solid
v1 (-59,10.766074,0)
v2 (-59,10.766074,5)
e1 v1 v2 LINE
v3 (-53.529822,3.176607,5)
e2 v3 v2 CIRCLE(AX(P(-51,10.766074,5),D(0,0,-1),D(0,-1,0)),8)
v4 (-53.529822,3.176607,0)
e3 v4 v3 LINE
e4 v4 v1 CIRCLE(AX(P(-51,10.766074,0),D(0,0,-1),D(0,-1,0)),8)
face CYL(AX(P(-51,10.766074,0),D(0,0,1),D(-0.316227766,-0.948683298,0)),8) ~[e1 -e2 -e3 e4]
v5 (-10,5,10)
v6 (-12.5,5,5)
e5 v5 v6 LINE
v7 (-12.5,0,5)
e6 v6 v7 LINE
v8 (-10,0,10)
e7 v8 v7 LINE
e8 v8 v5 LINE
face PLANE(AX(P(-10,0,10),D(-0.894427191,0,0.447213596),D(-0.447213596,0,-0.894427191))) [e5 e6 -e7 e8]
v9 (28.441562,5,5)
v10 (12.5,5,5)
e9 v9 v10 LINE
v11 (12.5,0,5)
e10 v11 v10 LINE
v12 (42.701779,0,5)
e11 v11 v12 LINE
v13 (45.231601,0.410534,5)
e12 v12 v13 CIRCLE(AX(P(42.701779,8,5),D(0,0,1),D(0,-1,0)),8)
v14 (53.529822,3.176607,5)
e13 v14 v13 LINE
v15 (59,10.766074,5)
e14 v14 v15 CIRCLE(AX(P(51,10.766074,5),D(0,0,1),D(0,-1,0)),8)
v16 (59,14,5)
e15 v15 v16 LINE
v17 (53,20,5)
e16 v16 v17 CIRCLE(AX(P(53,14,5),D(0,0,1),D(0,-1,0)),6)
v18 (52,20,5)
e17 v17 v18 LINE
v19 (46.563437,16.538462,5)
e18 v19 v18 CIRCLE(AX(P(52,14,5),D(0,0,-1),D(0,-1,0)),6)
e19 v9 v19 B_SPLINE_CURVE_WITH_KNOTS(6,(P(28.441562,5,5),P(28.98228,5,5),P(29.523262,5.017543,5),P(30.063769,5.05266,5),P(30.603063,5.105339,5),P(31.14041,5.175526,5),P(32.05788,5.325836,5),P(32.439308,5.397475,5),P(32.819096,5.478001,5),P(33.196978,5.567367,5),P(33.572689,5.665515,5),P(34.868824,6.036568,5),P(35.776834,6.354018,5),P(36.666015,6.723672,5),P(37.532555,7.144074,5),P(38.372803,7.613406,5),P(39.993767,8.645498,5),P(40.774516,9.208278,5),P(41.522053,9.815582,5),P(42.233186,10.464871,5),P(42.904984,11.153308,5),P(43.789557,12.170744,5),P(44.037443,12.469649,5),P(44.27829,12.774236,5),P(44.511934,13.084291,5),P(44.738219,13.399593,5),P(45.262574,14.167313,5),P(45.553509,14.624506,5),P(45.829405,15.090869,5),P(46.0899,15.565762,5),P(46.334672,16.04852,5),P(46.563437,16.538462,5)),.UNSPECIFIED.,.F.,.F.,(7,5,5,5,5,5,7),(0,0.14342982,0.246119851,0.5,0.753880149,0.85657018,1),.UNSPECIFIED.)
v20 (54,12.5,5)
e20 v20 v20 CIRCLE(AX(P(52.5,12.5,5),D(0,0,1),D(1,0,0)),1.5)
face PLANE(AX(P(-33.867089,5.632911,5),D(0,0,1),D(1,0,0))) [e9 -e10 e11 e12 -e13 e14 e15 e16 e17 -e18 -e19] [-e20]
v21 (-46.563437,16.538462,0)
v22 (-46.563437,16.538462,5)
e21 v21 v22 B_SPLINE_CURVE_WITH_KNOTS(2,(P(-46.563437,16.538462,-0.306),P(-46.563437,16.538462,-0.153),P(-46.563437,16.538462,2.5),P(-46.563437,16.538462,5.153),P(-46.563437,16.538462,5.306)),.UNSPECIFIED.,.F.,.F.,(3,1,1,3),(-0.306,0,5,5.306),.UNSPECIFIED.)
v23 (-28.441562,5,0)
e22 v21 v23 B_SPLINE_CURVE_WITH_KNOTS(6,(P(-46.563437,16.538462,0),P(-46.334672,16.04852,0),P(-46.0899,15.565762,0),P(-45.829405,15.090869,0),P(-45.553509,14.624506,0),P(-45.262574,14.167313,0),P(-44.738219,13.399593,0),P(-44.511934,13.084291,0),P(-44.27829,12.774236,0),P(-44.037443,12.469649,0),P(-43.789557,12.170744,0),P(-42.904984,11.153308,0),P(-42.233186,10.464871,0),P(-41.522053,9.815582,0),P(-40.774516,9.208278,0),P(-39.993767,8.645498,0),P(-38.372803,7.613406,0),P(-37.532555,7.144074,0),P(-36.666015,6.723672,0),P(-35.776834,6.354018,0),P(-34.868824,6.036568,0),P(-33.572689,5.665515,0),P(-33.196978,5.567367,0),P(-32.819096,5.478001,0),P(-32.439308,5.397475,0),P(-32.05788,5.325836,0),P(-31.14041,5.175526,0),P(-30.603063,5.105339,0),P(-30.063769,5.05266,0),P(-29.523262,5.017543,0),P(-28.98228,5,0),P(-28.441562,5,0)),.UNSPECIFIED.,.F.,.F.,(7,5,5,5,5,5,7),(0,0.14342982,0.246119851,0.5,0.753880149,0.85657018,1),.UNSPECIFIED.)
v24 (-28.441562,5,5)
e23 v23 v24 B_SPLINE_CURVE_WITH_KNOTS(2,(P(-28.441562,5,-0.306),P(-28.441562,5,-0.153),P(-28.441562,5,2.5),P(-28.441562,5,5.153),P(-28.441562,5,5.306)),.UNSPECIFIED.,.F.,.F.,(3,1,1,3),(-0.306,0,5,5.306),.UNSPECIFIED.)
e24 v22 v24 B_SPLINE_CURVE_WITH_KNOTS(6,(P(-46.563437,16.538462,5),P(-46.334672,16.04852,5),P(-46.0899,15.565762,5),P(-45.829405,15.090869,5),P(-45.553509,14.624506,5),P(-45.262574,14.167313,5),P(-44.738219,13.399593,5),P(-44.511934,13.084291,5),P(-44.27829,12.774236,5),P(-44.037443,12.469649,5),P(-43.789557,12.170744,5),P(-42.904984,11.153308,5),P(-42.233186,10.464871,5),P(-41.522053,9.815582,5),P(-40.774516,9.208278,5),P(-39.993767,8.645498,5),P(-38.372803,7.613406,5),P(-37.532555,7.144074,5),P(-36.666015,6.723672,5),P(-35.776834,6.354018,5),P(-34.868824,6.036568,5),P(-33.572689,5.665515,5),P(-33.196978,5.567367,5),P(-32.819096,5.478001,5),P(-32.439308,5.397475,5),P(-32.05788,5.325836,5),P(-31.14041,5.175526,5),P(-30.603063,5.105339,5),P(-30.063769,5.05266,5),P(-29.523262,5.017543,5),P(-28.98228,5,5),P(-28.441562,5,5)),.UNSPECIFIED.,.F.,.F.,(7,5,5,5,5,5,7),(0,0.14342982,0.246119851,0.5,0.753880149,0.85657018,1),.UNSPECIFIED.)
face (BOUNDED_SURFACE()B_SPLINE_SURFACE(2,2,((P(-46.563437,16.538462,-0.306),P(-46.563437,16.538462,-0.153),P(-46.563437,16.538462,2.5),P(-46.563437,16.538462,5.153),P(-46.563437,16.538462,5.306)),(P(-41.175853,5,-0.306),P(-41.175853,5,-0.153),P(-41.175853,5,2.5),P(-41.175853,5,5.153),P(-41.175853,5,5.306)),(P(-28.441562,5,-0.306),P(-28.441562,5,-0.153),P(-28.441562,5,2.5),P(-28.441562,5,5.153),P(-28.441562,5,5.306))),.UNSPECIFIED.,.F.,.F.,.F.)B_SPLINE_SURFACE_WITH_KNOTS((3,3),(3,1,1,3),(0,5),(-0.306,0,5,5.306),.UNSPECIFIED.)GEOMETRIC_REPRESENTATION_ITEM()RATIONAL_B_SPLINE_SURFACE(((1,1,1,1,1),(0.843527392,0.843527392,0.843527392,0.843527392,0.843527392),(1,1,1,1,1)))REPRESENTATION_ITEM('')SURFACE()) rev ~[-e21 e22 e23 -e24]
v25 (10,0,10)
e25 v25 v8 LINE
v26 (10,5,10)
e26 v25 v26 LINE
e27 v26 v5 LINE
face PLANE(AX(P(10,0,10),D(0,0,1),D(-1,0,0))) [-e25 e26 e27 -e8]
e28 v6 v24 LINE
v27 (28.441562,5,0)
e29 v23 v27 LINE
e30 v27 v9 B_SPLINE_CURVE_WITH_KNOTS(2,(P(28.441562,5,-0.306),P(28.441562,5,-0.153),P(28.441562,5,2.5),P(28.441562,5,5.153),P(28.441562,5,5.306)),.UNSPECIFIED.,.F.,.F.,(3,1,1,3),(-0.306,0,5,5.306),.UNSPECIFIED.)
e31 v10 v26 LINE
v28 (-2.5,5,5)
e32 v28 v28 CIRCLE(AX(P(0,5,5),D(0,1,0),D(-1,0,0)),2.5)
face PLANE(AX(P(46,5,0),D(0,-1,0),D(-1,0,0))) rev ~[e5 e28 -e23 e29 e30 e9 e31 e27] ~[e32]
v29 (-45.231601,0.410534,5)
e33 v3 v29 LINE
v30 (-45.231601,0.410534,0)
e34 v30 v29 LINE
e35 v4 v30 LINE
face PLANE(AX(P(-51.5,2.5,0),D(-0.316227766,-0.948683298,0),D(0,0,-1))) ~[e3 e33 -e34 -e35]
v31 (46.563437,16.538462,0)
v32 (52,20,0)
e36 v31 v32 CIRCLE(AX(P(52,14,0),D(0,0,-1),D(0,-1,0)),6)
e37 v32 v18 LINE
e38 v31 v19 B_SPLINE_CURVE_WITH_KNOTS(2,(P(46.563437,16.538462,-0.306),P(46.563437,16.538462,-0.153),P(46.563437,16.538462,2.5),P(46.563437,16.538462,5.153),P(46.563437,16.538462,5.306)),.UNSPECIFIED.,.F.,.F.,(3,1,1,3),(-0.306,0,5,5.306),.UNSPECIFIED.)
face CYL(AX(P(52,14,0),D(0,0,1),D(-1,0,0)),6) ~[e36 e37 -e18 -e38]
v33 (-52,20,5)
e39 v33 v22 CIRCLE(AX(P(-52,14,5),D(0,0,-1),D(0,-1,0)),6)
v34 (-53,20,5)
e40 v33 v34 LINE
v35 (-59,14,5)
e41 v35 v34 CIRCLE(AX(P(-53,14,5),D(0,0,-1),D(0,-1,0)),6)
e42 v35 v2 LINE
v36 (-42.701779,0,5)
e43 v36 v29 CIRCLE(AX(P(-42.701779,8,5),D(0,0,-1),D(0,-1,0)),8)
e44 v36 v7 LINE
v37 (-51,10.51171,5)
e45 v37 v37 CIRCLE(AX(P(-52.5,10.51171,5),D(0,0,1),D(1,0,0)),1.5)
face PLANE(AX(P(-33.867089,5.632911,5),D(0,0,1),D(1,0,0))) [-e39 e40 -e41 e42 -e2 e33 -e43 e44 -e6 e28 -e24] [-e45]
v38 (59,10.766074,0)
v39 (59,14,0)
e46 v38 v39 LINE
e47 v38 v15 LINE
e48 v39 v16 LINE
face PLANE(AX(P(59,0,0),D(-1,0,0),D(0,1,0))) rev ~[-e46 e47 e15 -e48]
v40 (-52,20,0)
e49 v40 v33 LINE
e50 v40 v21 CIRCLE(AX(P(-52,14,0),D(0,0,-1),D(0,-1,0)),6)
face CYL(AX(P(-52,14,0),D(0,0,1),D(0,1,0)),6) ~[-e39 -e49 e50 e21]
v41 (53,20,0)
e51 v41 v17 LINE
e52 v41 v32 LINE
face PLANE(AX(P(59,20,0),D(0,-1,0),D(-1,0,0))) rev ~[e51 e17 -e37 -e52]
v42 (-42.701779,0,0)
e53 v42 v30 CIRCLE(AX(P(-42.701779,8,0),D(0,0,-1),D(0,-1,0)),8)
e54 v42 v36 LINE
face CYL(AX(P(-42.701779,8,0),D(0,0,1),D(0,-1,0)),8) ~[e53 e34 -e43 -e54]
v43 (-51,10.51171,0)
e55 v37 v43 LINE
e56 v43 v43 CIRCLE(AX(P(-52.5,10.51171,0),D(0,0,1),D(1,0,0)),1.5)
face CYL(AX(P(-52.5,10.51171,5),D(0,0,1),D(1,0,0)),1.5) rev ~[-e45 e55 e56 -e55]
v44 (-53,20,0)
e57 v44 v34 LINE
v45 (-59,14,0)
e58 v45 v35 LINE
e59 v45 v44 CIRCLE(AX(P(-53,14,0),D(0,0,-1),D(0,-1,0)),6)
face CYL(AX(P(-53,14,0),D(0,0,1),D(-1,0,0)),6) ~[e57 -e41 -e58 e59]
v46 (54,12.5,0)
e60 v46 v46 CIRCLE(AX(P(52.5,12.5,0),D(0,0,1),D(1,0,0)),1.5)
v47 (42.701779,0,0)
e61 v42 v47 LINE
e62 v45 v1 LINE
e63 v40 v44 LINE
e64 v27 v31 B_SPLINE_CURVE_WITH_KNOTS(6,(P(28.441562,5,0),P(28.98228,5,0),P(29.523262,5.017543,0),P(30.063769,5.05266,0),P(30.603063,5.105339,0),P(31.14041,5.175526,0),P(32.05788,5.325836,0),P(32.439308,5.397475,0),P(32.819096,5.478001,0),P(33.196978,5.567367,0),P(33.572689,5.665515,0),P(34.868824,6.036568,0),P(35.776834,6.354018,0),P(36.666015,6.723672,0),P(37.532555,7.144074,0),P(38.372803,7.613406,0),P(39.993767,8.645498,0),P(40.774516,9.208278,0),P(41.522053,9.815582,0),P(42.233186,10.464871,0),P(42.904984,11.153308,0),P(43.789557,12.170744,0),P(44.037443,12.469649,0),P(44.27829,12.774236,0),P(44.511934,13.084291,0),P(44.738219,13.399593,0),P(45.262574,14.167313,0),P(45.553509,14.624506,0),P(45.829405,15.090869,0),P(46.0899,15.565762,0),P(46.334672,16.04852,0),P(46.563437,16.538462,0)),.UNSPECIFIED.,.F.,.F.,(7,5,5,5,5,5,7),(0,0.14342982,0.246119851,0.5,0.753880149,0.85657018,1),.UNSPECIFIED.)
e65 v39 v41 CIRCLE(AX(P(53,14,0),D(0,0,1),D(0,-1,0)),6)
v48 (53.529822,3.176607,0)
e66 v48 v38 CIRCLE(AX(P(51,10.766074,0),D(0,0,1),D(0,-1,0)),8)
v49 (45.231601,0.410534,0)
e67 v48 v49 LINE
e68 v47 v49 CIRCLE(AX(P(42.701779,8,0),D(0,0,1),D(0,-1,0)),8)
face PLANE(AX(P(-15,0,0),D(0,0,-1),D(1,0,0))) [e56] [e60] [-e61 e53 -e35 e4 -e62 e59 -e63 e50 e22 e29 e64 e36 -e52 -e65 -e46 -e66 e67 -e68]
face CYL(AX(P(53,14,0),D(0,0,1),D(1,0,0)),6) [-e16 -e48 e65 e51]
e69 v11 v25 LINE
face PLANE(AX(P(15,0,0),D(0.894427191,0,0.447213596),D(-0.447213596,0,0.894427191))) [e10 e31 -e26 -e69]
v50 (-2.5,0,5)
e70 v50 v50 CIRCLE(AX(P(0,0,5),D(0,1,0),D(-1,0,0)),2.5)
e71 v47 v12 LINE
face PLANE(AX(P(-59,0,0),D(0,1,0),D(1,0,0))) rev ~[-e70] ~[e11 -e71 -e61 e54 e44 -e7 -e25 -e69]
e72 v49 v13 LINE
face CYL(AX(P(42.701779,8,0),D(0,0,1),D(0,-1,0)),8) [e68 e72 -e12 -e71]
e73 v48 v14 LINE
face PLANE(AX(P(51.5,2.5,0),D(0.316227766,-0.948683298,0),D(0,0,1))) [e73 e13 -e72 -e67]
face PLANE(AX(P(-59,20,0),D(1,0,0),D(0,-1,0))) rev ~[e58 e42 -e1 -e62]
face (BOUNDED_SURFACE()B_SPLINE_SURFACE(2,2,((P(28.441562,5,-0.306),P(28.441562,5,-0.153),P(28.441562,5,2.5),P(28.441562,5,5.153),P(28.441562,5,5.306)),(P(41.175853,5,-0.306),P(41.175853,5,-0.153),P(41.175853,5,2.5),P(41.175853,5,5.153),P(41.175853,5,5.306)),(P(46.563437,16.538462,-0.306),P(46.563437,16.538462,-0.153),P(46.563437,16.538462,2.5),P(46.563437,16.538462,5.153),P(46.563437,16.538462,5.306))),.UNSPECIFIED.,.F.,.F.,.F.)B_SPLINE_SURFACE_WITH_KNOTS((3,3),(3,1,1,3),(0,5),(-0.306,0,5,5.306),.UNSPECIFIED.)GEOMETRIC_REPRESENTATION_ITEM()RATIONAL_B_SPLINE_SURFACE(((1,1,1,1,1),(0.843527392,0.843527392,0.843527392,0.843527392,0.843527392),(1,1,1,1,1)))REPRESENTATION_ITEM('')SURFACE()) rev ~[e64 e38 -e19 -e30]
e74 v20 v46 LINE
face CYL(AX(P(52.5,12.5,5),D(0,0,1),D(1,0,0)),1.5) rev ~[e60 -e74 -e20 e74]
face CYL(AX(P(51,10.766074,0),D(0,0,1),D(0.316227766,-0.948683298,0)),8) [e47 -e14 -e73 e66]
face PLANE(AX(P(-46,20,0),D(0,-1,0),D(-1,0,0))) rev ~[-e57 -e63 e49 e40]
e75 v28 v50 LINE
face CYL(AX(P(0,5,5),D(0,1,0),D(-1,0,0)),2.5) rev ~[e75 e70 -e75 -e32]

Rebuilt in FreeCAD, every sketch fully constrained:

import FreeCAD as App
import Part
import Sketcher
from FreeCAD import Vector


def edges_at(feature, points):
    """Names of the edges that pass closest to the given points."""
    edges = feature.Shape.Edges
    near = lambda p: min(range(len(edges)), key=lambda i: edges[i].distToShape(Part.Vertex(*p))[0])
    return sorted({f"Edge{near(p) + 1}" for p in points})

doc = App.newDocument("Part")
params = doc.addObject("Spreadsheet::Sheet", "Params")
for row, (alias, value) in enumerate([
    ("sketch1_width", "118 mm"),
    ("sketch1_width2", "13 mm"),
    ("sketch1_height", "20 mm"),
    ("sketch1_height2", "15 mm"),
    ("pad1_length", "5 mm"),
    ("sketch2_width", "20 mm"),
    ("sketch2_width2", "30 mm"),
    ("pad2_length", "5 mm"),
    ("sketch3_diameter", "5 mm"),
    ("pocket1_length", "25 mm"),
    ("fillet_radius", "6 mm"),
    ("sketch4_diameter", "3 mm"),
    ("pocket2_length", "25 mm"),
    ("fillet2_radius", "20 mm"),
    ("chamfer_size", "5 mm"),
    ("chamfer_size2", "15 mm"),
    ("chamfer2_size", "5 mm"),
    ("chamfer2_size2", "15 mm"),
    ("fillet3_radius", "8 mm"),
], start=1):
    params.set(f"A{row}", alias)
    params.set(f"B{row}", "=" + value)
    params.setAlias(f"B{row}", alias)

body = doc.addObject("PartDesign::Body", "Body")

# Sketch on XY plane
sketch1 = doc.addObject("Sketcher::SketchObject", "Sketch")
body.addObject(sketch1)
sketch1.AttachmentSupport = (doc.XY_Plane, [""])
sketch1.MapMode = "FlatFace"
sketch1.addGeometry([
    Part.LineSegment(Vector(-59, 0, 0), Vector(59, 0, 0)),  # 0
    Part.LineSegment(Vector(59, 0, 0), Vector(59, 20, 0)),  # 1
    Part.LineSegment(Vector(59, 20, 0), Vector(46, 20, 0)),  # 2
    Part.LineSegment(Vector(46, 20, 0), Vector(46, 5, 0)),  # 3
    Part.LineSegment(Vector(46, 5, 0), Vector(-46, 5, 0)),  # 4
    Part.LineSegment(Vector(-46, 5, 0), Vector(-46, 20, 0)),  # 5
    Part.LineSegment(Vector(-46, 20, 0), Vector(-59, 20, 0)),  # 6
    Part.LineSegment(Vector(-59, 20, 0), Vector(-59, 0, 0)),  # 7
], False)
sketch1.addConstraint([
    Sketcher.Constraint("Coincident", 0, 2, 1, 1),
    Sketcher.Constraint("Coincident", 1, 2, 2, 1),
    Sketcher.Constraint("Coincident", 2, 2, 3, 1),
    Sketcher.Constraint("Coincident", 3, 2, 4, 1),
    Sketcher.Constraint("Coincident", 4, 2, 5, 1),
    Sketcher.Constraint("Coincident", 5, 2, 6, 1),
    Sketcher.Constraint("Coincident", 6, 2, 7, 1),
    Sketcher.Constraint("Coincident", 7, 2, 0, 1),
    Sketcher.Constraint("Horizontal", 0),
    Sketcher.Constraint("Vertical", 1),
    Sketcher.Constraint("Horizontal", 2),
    Sketcher.Constraint("Vertical", 3),
    Sketcher.Constraint("Horizontal", 4),
    Sketcher.Constraint("Vertical", 5),
    Sketcher.Constraint("Horizontal", 6),
    Sketcher.Constraint("Vertical", 7),
    Sketcher.Constraint("Symmetric", 0, 2, 7, 2, -1, 1),
    Sketcher.Constraint("Symmetric", 2, 2, 5, 2, -2),
    Sketcher.Constraint("DistanceX", 0, 1, 0, 2, 118.0),
    Sketcher.Constraint("DistanceX", 2, 2, 2, 1, 13.0),
    Sketcher.Constraint("DistanceY", 1, 1, 1, 2, 20.0),
    Sketcher.Constraint("DistanceY", 3, 2, 3, 1, 15.0),
])
sketch1.setExpression("Constraints[18]", "Params.sketch1_width")
sketch1.setExpression("Constraints[19]", "Params.sketch1_width2")
sketch1.setExpression("Constraints[20]", "Params.sketch1_height")
sketch1.setExpression("Constraints[21]", "Params.sketch1_height2")
pad1 = doc.addObject("PartDesign::Pad", "Pad")
body.addObject(pad1)
pad1.Profile = sketch1
pad1.setExpression("Length", "Params.pad1_length")

# Sketch on XZ plane
sketch2 = doc.addObject("Sketcher::SketchObject", "Sketch001")
body.addObject(sketch2)
sketch2.AttachmentSupport = (doc.XZ_Plane, [""])
sketch2.MapMode = "FlatFace"
sketch2.addGeometry([
    Part.LineSegment(Vector(15, 0, 0), Vector(10, 10, 0)),
    Part.LineSegment(Vector(10, 10, 0), Vector(-10, 10, 0)),
    Part.LineSegment(Vector(-10, 10, 0), Vector(-15, 0, 0)),
    Part.LineSegment(Vector(-15, 0, 0), Vector(15, 0, 0)),
], False)
sketch2.addConstraint([
    Sketcher.Constraint("Coincident", 0, 2, 1, 1),
    Sketcher.Constraint("Coincident", 1, 2, 2, 1),
    Sketcher.Constraint("Coincident", 2, 2, 3, 1),
    Sketcher.Constraint("Coincident", 3, 2, 0, 1),
    Sketcher.Constraint("Horizontal", 1),
    Sketcher.Constraint("Horizontal", 3),
    Sketcher.Constraint("Symmetric", 2, 2, 3, 2, -1, 1),
    Sketcher.Constraint("Equal", 0, 2),
    Sketcher.Constraint("DistanceX", 1, 2, 1, 1, 20.0),
    Sketcher.Constraint("DistanceX", 3, 1, 3, 2, 30.0),
    Sketcher.Constraint("DistanceY", -1, 1, 0, 2, 10.0),
])
sketch2.setExpression("Constraints[8]", "Params.sketch2_width")
sketch2.setExpression("Constraints[9]", "Params.sketch2_width2")
pad2 = doc.addObject("PartDesign::Pad", "Pad001")
body.addObject(pad2)
pad2.Profile = sketch2
pad2.setExpression("Length", "Params.pad2_length")
pad2.Reversed = True

# Sketch on XZ plane
sketch3 = doc.addObject("Sketcher::SketchObject", "Sketch002")
body.addObject(sketch3)
sketch3.AttachmentSupport = (doc.XZ_Plane, [""])
sketch3.MapMode = "FlatFace"
sketch3.AttachmentOffset = App.Placement(Vector(0, 0, -5), App.Rotation())
sketch3.addGeometry(Part.Circle(Vector(0, 5, 0), Vector(0, 0, 1), 2.5), False)
sketch3.addConstraint([
    Sketcher.Constraint("PointOnObject", 0, 3, -2),
    Sketcher.Constraint("Diameter", 0, 5.0),
    Sketcher.Constraint("DistanceY", -1, 1, 0, 3, 5.0),
])
sketch3.setExpression("Constraints[1]", "Params.sketch3_diameter")
pocket1 = doc.addObject("PartDesign::Pocket", "Pocket")
body.addObject(pocket1)
pocket1.Profile = sketch3
pocket1.setExpression("Length", "Params.pocket1_length")
pocket1.Reversed = True
doc.recompute()

fillet = doc.addObject("PartDesign::Fillet", "Fillet")
body.addObject(fillet)
fillet.Base = (pocket1, edges_at(pocket1, [
    (59, 20, 2.5),
    (46, 20, 2.5),
    (-46, 20, 2.5),
    (-59, 20, 2.5),
]))
fillet.setExpression("Radius", "Params.fillet_radius")

# Sketch on XY plane
sketch4 = doc.addObject("Sketcher::SketchObject", "Sketch003")
body.addObject(sketch4)
sketch4.AttachmentSupport = (doc.XY_Plane, [""])
sketch4.MapMode = "FlatFace"
sketch4.AttachmentOffset = App.Placement(Vector(0, 0, 5), App.Rotation())
sketch4.addGeometry([
    Part.Circle(Vector(52.5, 12.5, 0), Vector(0, 0, 1), 1.5),
    Part.Circle(Vector(-52.5, 10.5, 0), Vector(0, 0, 1), 1.5),
], False)
sketch4.addConstraint([
    Sketcher.Constraint("Equal", 0, 1),
    Sketcher.Constraint("Diameter", 0, 3.0),
    Sketcher.Constraint("DistanceX", 1, 3, 0, 3, 105.0),
    Sketcher.Constraint("DistanceX", -1, 1, 0, 3, 52.5),
    Sketcher.Constraint("DistanceY", -1, 1, 0, 3, 12.5),
    Sketcher.Constraint("DistanceY", -1, 1, 1, 3, 10.51171),
])
sketch4.setExpression("Constraints[1]", "Params.sketch4_diameter")
pocket2 = doc.addObject("PartDesign::Pocket", "Pocket001")
body.addObject(pocket2)
pocket2.Profile = sketch4
pocket2.setExpression("Length", "Params.pocket2_length")
doc.recompute()

fillet2 = doc.addObject("PartDesign::Fillet", "Fillet001")
body.addObject(fillet2)
fillet2.Base = (pocket2, edges_at(pocket2, [(46, 5, 2.5), (-46, 5, 2.5)]))
fillet2.setExpression("Radius", "Params.fillet2_radius")
doc.recompute()

chamfer = doc.addObject("PartDesign::Chamfer", "Chamfer")
body.addObject(chamfer)
chamfer.Base = (fillet2, edges_at(fillet2, [(59, 0, 2.5)]))
chamfer.ChamferType = "Two distances"
chamfer.setExpression("Size", "Params.chamfer_size")
chamfer.setExpression("Size2", "Params.chamfer_size2")
chamfer.FlipDirection = True
doc.recompute()

chamfer2 = doc.addObject("PartDesign::Chamfer", "Chamfer001")
body.addObject(chamfer2)
chamfer2.Base = (chamfer, edges_at(chamfer, [(-59, 0, 2.5)]))
chamfer2.ChamferType = "Two distances"
chamfer2.setExpression("Size", "Params.chamfer2_size")
chamfer2.setExpression("Size2", "Params.chamfer2_size2")
chamfer2.FlipDirection = True
doc.recompute()

fillet3 = doc.addObject("PartDesign::Fillet", "Fillet002")
body.addObject(fillet3)
fillet3.Base = (chamfer2, edges_at(chamfer2, [
    (59, 5, 2.5),
    (44, 0, 2.5),
    (-44, 0, 2.5),
    (-59, 5, 2.5),
]))
fillet3.setExpression("Radius", "Params.fillet3_radius")

doc.recompute()
